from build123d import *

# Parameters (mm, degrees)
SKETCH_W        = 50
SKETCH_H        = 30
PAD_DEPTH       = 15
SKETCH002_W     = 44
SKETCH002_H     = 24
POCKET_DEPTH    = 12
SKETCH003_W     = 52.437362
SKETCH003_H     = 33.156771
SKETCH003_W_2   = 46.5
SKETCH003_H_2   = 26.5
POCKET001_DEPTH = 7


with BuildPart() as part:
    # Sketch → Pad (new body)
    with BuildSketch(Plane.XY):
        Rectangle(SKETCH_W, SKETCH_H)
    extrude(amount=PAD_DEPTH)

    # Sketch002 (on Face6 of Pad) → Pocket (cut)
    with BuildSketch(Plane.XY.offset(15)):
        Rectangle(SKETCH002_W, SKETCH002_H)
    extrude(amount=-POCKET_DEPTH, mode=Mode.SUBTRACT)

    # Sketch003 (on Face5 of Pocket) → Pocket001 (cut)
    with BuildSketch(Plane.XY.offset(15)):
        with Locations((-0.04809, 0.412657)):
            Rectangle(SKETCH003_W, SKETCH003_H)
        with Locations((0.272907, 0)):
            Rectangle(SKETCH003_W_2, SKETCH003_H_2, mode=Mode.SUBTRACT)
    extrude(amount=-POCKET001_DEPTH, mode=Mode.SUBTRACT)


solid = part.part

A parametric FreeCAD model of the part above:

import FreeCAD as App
import Part
import Sketcher
Q = App.Units.Quantity

doc = App.newDocument("Part")
body = doc.addObject("PartDesign::Body", "Body")

sketch1 = body.newObject("Sketcher::SketchObject", "Sketch")
sketch1.AttachmentSupport = (doc.getObject("XY_Plane"), [""])
sketch1.MapMode = "FlatFace"
sketch1.addGeometry(Part.LineSegment(App.Vector(-25, 15, 0), App.Vector(-25, -15, 0)), False)
sketch1.addGeometry(Part.LineSegment(App.Vector(-25, -15, 0), App.Vector(25, -15, 0)), False)
sketch1.addGeometry(Part.LineSegment(App.Vector(25, -15, 0), App.Vector(25, 15, 0)), False)
sketch1.addGeometry(Part.LineSegment(App.Vector(25, 15, 0), App.Vector(-25, 15, 0)), False)
sketch1.addConstraint(Sketcher.Constraint("Coincident", 0, 2, 1, 1))
sketch1.addConstraint(Sketcher.Constraint("Coincident", 1, 2, 2, 1))
sketch1.addConstraint(Sketcher.Constraint("Coincident", 2, 2, 3, 1))
sketch1.addConstraint(Sketcher.Constraint("Coincident", 3, 2, 0, 1))
sketch1.addConstraint(Sketcher.Constraint("Vertical", 0))
sketch1.addConstraint(Sketcher.Constraint("Horizontal", 1))
sketch1.addConstraint(Sketcher.Constraint("Vertical", 2))
sketch1.addConstraint(Sketcher.Constraint("Horizontal", 3))
sketch1.addConstraint(Sketcher.Constraint("Symmetric", 0, 2, 2, 2, -1, 1))
sketch1.addConstraint(Sketcher.Constraint("DistanceX", 1, 1, 1, 2, Q("50 mm")))
sketch1.addConstraint(Sketcher.Constraint("DistanceY", 0, 2, 0, 1, Q("30 mm")))
pad1 = body.newObject("PartDesign::Pad", "Pad")
pad1.Profile = sketch1
pad1.Length = 15

sketch2 = body.newObject("Sketcher::SketchObject", "Sketch001")
sketch2.AttachmentSupport = (doc.getObject("XY_Plane"), [""])
sketch2.MapMode = "FlatFace"
sketch2.AttachmentOffset = App.Placement(App.Vector(0, 0, 15), App.Rotation())
sketch2.addGeometry(Part.LineSegment(App.Vector(-22, 12, 0), App.Vector(-22, -12, 0)), False)
sketch2.addGeometry(Part.LineSegment(App.Vector(-22, -12, 0), App.Vector(22, -12, 0)), False)
sketch2.addGeometry(Part.LineSegment(App.Vector(22, -12, 0), App.Vector(22, 12, 0)), False)
sketch2.addGeometry(Part.LineSegment(App.Vector(22, 12, 0), App.Vector(-22, 12, 0)), False)
sketch2.addConstraint(Sketcher.Constraint("Coincident", 0, 2, 1, 1))
sketch2.addConstraint(Sketcher.Constraint("Coincident", 1, 2, 2, 1))
sketch2.addConstraint(Sketcher.Constraint("Coincident", 2, 2, 3, 1))
sketch2.addConstraint(Sketcher.Constraint("Coincident", 3, 2, 0, 1))
sketch2.addConstraint(Sketcher.Constraint("Vertical", 0))
sketch2.addConstraint(Sketcher.Constraint("Horizontal", 1))
sketch2.addConstraint(Sketcher.Constraint("Vertical", 2))
sketch2.addConstraint(Sketcher.Constraint("Horizontal", 3))
sketch2.addConstraint(Sketcher.Constraint("Symmetric", 0, 2, 2, 2, -1, 1))
sketch2.addConstraint(Sketcher.Constraint("DistanceX", 1, 1, 1, 2, Q("44 mm")))
sketch2.addConstraint(Sketcher.Constraint("DistanceY", 0, 2, 0, 1, Q("24 mm")))
pocket1 = body.newObject("PartDesign::Pocket", "Pocket")
pocket1.Profile = sketch2
pocket1.Length = 12

sketch3 = body.newObject("Sketcher::SketchObject", "Sketch002")
sketch3.AttachmentSupport = (doc.getObject("XY_Plane"), [""])
sketch3.MapMode = "FlatFace"
sketch3.AttachmentOffset = App.Placement(App.Vector(0, 0, 15), App.Rotation())
sketch3.addGeometry(Part.LineSegment(App.Vector(-26, 17, 0), App.Vector(-26, -16, 0)), False)
sketch3.addGeometry(Part.LineSegment(App.Vector(-26, -16, 0), App.Vector(26, -16, 0)), False)
sketch3.addGeometry(Part.LineSegment(App.Vector(26, -16, 0), App.Vector(26, 17, 0)), False)
sketch3.addGeometry(Part.LineSegment(App.Vector(26, 17, 0), App.Vector(-26, 17, 0)), False)
sketch3.addGeometry(Part.LineSegment(App.Vector(24, -13, 0), App.Vector(-23, -13, 0)), False)
sketch3.addGeometry(Part.LineSegment(App.Vector(-23, -13, 0), App.Vector(-23, 13, 0)), False)
sketch3.addGeometry(Part.LineSegment(App.Vector(-23, 13, 0), App.Vector(24, 13, 0)), False)
sketch3.addGeometry(Part.LineSegment(App.Vector(24, 13, 0), App.Vector(24, -13, 0)), False)
sketch3.addConstraint(Sketcher.Constraint("Coincident", 0, 2, 1, 1))
sketch3.addConstraint(Sketcher.Constraint("Coincident", 1, 2, 2, 1))
sketch3.addConstraint(Sketcher.Constraint("Coincident", 2, 2, 3, 1))
sketch3.addConstraint(Sketcher.Constraint("Coincident", 3, 2, 0, 1))
sketch3.addConstraint(Sketcher.Constraint("Coincident", 4, 2, 5, 1))
sketch3.addConstraint(Sketcher.Constraint("Coincident", 5, 2, 6, 1))
sketch3.addConstraint(Sketcher.Constraint("Coincident", 6, 2, 7, 1))
sketch3.addConstraint(Sketcher.Constraint("Coincident", 7, 2, 4, 1))
sketch3.addConstraint(Sketcher.Constraint("Vertical", 0))
sketch3.addConstraint(Sketcher.Constraint("Horizontal", 1))
sketch3.addConstraint(Sketcher.Constraint("Vertical", 2))
sketch3.addConstraint(Sketcher.Constraint("Horizontal", 3))
sketch3.addConstraint(Sketcher.Constraint("Horizontal", 4))
sketch3.addConstraint(Sketcher.Constraint("Vertical", 5))
sketch3.addConstraint(Sketcher.Constraint("Horizontal", 6))
sketch3.addConstraint(Sketcher.Constraint("Vertical", 7))
sketch3.addConstraint(Sketcher.Constraint("DistanceX", 4, 2, 4, 1, Q("46.5 mm")))
sketch3.addConstraint(Sketcher.Constraint("DistanceY", 5, 1, 5, 2, Q("26.5 mm")))
sketch3.addConstraint(Sketcher.Constraint("DistanceY", 4, 2, -1, 1, Q("13.25 mm")))
sketch3.addConstraint(Sketcher.Constraint("DistanceY", 0, 2, 0, 1, Q("33.156771 mm")))
sketch3.addConstraint(Sketcher.Constraint("DistanceX", 1, 1, 1, 2, Q("52.437362 mm")))
sketch3.addConstraint(Sketcher.Constraint("DistanceX", 0, 2, -1, 1, Q("26.266771 mm")))
sketch3.addConstraint(Sketcher.Constraint("DistanceY", 0, 2, -1, 1, Q("16.165729 mm")))
sketch3.addConstraint(Sketcher.Constraint("DistanceX", 4, 2, -1, 1, Q("22.977093 mm")))
pocket2 = body.newObject("PartDesign::Pocket", "Pocket001")
pocket2.Profile = sketch3
pocket2.Length = 7

doc.recompute()
